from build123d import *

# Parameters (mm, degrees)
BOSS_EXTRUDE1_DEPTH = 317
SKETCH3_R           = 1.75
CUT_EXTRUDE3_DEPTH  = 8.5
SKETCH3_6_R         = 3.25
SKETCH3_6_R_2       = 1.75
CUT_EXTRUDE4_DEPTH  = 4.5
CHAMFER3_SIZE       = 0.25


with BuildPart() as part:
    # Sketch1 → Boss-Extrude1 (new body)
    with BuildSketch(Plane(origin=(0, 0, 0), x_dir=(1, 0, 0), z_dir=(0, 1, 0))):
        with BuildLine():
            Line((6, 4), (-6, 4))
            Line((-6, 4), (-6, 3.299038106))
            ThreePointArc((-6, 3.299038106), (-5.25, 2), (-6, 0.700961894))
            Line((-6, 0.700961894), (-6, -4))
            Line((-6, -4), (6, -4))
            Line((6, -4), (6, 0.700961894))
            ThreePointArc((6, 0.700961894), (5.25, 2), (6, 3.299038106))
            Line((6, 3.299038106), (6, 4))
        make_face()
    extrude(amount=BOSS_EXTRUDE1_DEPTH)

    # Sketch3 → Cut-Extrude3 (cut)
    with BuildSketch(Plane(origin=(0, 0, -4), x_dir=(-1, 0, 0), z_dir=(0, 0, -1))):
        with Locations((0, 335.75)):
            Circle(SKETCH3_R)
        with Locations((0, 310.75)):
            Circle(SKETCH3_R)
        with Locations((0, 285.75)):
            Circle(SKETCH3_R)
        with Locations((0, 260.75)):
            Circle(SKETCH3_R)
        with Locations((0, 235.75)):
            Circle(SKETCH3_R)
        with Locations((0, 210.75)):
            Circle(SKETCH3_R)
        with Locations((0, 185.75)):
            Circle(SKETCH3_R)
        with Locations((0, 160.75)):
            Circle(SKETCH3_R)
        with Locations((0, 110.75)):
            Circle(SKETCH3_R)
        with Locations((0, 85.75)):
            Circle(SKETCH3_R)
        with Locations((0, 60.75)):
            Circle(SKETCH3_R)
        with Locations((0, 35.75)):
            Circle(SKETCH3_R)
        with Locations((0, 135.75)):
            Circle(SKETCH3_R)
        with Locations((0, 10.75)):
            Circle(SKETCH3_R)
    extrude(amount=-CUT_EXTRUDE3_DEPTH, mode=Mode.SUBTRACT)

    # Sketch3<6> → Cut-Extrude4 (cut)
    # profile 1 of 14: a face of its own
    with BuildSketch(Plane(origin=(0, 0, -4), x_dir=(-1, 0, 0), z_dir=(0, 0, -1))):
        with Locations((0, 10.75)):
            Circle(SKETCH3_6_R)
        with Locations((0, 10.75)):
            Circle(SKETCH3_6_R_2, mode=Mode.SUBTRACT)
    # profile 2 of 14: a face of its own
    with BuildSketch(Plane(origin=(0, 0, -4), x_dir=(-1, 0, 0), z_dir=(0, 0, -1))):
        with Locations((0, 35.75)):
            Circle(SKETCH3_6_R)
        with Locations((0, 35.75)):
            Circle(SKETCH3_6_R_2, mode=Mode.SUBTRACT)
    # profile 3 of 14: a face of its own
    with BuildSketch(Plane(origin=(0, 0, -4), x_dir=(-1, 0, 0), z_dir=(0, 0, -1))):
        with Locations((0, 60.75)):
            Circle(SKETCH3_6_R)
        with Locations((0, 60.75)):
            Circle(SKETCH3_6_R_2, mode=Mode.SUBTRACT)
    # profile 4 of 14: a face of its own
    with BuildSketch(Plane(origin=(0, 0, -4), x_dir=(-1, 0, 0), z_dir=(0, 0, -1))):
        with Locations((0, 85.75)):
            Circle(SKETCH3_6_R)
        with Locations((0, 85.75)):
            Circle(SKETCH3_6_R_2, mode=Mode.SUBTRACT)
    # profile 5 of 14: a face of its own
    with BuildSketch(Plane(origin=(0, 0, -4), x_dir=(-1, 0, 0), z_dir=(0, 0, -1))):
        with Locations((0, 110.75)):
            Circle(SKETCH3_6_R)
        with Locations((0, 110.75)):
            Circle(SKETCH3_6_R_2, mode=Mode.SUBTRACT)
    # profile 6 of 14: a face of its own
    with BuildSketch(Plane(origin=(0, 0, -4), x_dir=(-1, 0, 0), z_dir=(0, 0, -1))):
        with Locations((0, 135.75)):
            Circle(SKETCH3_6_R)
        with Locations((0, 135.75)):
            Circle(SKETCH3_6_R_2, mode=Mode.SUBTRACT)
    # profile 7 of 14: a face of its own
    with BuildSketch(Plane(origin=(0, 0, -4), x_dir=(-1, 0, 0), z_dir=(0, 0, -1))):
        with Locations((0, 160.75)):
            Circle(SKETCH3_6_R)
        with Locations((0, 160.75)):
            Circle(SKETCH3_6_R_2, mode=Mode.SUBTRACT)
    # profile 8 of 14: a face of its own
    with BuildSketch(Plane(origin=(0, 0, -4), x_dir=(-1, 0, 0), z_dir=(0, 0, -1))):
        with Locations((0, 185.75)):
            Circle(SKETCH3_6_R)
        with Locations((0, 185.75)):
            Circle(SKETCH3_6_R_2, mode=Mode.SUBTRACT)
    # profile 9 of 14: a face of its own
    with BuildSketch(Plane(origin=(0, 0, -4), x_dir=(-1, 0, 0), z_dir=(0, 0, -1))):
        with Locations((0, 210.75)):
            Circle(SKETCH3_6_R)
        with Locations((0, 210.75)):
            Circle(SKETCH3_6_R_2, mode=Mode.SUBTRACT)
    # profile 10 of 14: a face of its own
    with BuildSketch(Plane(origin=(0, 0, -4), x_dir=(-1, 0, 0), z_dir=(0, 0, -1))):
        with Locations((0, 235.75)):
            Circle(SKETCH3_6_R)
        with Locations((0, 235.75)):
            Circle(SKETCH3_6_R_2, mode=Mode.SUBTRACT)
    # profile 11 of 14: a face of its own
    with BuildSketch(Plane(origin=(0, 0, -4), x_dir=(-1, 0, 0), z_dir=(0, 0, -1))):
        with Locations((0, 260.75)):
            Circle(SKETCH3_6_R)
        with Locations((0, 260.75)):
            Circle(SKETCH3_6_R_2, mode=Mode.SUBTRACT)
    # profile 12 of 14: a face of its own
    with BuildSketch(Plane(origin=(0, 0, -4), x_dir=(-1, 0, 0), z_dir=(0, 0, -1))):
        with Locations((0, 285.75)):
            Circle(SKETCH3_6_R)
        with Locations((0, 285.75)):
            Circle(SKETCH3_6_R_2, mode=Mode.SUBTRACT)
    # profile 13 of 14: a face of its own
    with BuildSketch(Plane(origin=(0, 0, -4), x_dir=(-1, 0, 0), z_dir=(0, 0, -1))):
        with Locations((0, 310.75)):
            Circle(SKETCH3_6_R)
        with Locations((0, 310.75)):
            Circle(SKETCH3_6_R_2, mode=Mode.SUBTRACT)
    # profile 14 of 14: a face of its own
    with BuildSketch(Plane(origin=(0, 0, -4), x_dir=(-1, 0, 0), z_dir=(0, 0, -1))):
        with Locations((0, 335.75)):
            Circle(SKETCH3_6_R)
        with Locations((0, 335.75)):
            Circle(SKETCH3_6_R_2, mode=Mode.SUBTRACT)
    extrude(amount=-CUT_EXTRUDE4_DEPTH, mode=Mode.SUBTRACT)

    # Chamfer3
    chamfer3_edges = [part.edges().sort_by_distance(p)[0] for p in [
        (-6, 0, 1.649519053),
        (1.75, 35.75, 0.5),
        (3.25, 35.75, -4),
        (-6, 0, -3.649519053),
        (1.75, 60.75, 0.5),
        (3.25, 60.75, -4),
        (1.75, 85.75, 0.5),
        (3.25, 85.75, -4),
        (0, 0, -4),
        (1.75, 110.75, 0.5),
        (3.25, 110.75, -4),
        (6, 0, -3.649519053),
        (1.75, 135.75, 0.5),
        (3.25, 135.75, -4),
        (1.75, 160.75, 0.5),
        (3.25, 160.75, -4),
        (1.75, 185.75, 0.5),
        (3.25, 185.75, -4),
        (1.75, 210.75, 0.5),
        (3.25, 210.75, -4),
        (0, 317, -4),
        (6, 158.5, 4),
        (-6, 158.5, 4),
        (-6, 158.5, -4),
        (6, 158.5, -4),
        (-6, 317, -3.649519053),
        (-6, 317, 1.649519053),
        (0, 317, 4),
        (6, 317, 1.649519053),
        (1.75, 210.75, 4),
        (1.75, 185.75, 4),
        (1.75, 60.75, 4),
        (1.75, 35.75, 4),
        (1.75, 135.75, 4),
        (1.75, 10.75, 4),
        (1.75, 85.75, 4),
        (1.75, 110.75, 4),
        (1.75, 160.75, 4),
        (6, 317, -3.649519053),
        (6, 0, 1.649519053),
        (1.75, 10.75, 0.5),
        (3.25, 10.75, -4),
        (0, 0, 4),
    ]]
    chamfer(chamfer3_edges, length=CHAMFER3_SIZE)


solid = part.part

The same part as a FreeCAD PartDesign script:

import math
import FreeCAD as App
import Part
import Sketcher

V = App.Vector
Q = App.Units.Quantity


def edges_at(feature, points):
    """Names of the edges that pass closest to the given points."""
    edges = feature.Shape.Edges
    near = lambda p: min(range(len(edges)), key=lambda i: edges[i].distToShape(Part.Vertex(*p))[0])
    return sorted({f"Edge{near(p) + 1}" for p in points})

doc = App.newDocument("Part")
body = doc.addObject("PartDesign::Body", "Body")

sketch1 = body.newObject("Sketcher::SketchObject", "Sketch")
sketch1.AttachmentSupport = (doc.getObject("XZ_Plane"), [""])
sketch1.MapMode = "FlatFace"
sketch1.addGeometry([
    Part.LineSegment(V(6, -4, 0), V(-6, -4, 0)),
    Part.LineSegment(V(-6, -4, 0), V(-6, -3.3, 0)),
    Part.ArcOfCircle(Part.Circle(V(-6.8, -2, 0), V(0, 0, 1), 1.5), math.radians(-60), math.radians(60)),
    Part.LineSegment(V(-6, -0.7, 0), V(-6, 4, 0)),
    Part.LineSegment(V(-6, 4, 0), V(6, 4, 0)),
    Part.LineSegment(V(6, 4, 0), V(6, -0.7, 0)),
    Part.ArcOfCircle(Part.Circle(V(6.8, -2, 0), V(0, 0, 1), 1.5), math.radians(120), math.radians(240)),
    Part.LineSegment(V(6, -3.3, 0), V(6, -4, 0)),
], False)
sketch1.addConstraint([
    Sketcher.Constraint("Coincident", 0, 2, 1, 1),
    Sketcher.Constraint("Coincident", 1, 2, 2, 1),
    Sketcher.Constraint("Coincident", 2, 2, 3, 1),
    Sketcher.Constraint("Coincident", 3, 2, 4, 1),
    Sketcher.Constraint("Coincident", 4, 2, 5, 1),
    Sketcher.Constraint("Coincident", 5, 2, 6, 1),
    Sketcher.Constraint("Coincident", 6, 2, 7, 1),
    Sketcher.Constraint("Coincident", 7, 2, 0, 1),
    Sketcher.Constraint("Horizontal", 0),
    Sketcher.Constraint("Vertical", 1),
    Sketcher.Constraint("Vertical", 3),
    Sketcher.Constraint("Horizontal", 4),
    Sketcher.Constraint("Vertical", 5),
    Sketcher.Constraint("Vertical", 7),
    Sketcher.Constraint("Equal", 2, 6),
    Sketcher.Constraint("Symmetric", 0, 2, 4, 2, -1, 1),
    Sketcher.Constraint("Symmetric", 2, 3, 6, 3, -2),
    Sketcher.Constraint("Horizontal", 2, 2, 5, 2),
    Sketcher.Constraint("Horizontal", 1, 2, 6, 2),
    Sketcher.Constraint("Radius", 2, Q("1.5 mm")),
    Sketcher.Constraint("DistanceX", 0, 2, 0, 1, Q("12 mm")),
    Sketcher.Constraint("DistanceY", 2, 3, -1, 1, Q("2 mm")),
    Sketcher.Constraint("DistanceY", 0, 2, -1, 1, Q("4 mm")),
    Sketcher.Constraint("DistanceX", 2, 3, 6, 3, Q("13.5 mm")),
])
pad1 = body.newObject("PartDesign::Pad", "Pad")
pad1.Profile = sketch1
pad1.Length = 317
pad1.Reversed = True

sketch2 = body.newObject("Sketcher::SketchObject", "Sketch001")
sketch2.AttachmentSupport = (doc.getObject("XY_Plane"), [""])
sketch2.MapMode = "FlatFace"
sketch2.AttachmentOffset = App.Placement(V(0, 0, -4), App.Rotation())
sketch2.addGeometry([
    Part.Circle(V(0, 335.8, 0), V(0, 0, 1), 1.8),
    Part.Circle(V(0, 310.8, 0), V(0, 0, 1), 1.8),
    Part.Circle(V(0, 285.8, 0), V(0, 0, 1), 1.8),
    Part.Circle(V(0, 260.8, 0), V(0, 0, 1), 1.8),
    Part.Circle(V(0, 235.8, 0), V(0, 0, 1), 1.8),
    Part.Circle(V(0, 210.8, 0), V(0, 0, 1), 1.8),
    Part.Circle(V(0, 185.8, 0), V(0, 0, 1), 1.8),
    Part.Circle(V(0, 160.8, 0), V(0, 0, 1), 1.8),
    Part.Circle(V(0, 110.8, 0), V(0, 0, 1), 1.8),
    Part.Circle(V(0, 85.8, 0), V(0, 0, 1), 1.8),
    Part.Circle(V(0, 60.8, 0), V(0, 0, 1), 1.8),
    Part.Circle(V(0, 35.8, 0), V(0, 0, 1), 1.8),
    Part.Circle(V(0, 135.8, 0), V(0, 0, 1), 1.8),
    Part.Circle(V(0, 10.8, 0), V(0, 0, 1), 1.8),
], False)
sketch2.addConstraint([
    Sketcher.Constraint("Equal", 0, 1),
    Sketcher.Constraint("Equal", 1, 2),
    Sketcher.Constraint("Equal", 2, 3),
    Sketcher.Constraint("Equal", 3, 4),
    Sketcher.Constraint("Equal", 4, 5),
    Sketcher.Constraint("Equal", 5, 6),
    Sketcher.Constraint("Equal", 6, 7),
    Sketcher.Constraint("Equal", 7, 8),
    Sketcher.Constraint("Equal", 8, 9),
    Sketcher.Constraint("Equal", 9, 10),
    Sketcher.Constraint("Equal", 10, 11),
    Sketcher.Constraint("Equal", 11, 12),
    Sketcher.Constraint("Equal", 12, 13),
    Sketcher.Constraint("PointOnObject", 0, 3, -2),
    Sketcher.Constraint("PointOnObject", 1, 3, -2),
    Sketcher.Constraint("PointOnObject", 2, 3, -2),
    Sketcher.Constraint("PointOnObject", 3, 3, -2),
    Sketcher.Constraint("PointOnObject", 4, 3, -2),
    Sketcher.Constraint("PointOnObject", 5, 3, -2),
    Sketcher.Constraint("PointOnObject", 6, 3, -2),
    Sketcher.Constraint("PointOnObject", 7, 3, -2),
    Sketcher.Constraint("PointOnObject", 8, 3, -2),
    Sketcher.Constraint("PointOnObject", 9, 3, -2),
    Sketcher.Constraint("PointOnObject", 10, 3, -2),
    Sketcher.Constraint("PointOnObject", 11, 3, -2),
    Sketcher.Constraint("PointOnObject", 12, 3, -2),
    Sketcher.Constraint("PointOnObject", 13, 3, -2),
    Sketcher.Constraint("Diameter", 0, Q("3.5 mm")),
    Sketcher.Constraint("DistanceY", 1, 3, 0, 3, Q("25 mm")),
    Sketcher.Constraint("DistanceY", 2, 3, 1, 3, Q("25 mm")),
    Sketcher.Constraint("DistanceY", 3, 3, 2, 3, Q("25 mm")),
    Sketcher.Constraint("DistanceY", 4, 3, 3, 3, Q("25 mm")),
    Sketcher.Constraint("DistanceY", 5, 3, 4, 3, Q("25 mm")),
    Sketcher.Constraint("DistanceY", 6, 3, 5, 3, Q("25 mm")),
    Sketcher.Constraint("DistanceY", 7, 3, 6, 3, Q("25 mm")),
    Sketcher.Constraint("DistanceY", 8, 3, 7, 3, Q("50 mm")),
    Sketcher.Constraint("DistanceY", 9, 3, 8, 3, Q("25 mm")),
    Sketcher.Constraint("DistanceY", 10, 3, 9, 3, Q("25 mm")),
    Sketcher.Constraint("DistanceY", 11, 3, 10, 3, Q("25 mm")),
    Sketcher.Constraint("DistanceY", 12, 3, 7, 3, Q("25 mm")),
    Sketcher.Constraint("DistanceY", 13, 3, 11, 3, Q("25 mm")),
    Sketcher.Constraint("DistanceY", -1, 1, 0, 3, Q("335.75 mm")),
])
pocket1 = body.newObject("PartDesign::Pocket", "Pocket")
pocket1.Profile = sketch2
pocket1.Length = 8.5
pocket1.Reversed = True

sketch3 = body.newObject("Sketcher::SketchObject", "Sketch002")
sketch3.AttachmentSupport = (doc.getObject("XY_Plane"), [""])
sketch3.MapMode = "FlatFace"
sketch3.AttachmentOffset = App.Placement(V(0, 0, -4), App.Rotation())
sketch3.addGeometry([
    Part.Circle(V(0, 10.8, 0), V(0, 0, 1), 3.2),
    Part.Circle(V(0, 10.8, 0), V(0, 0, 1), 1.8),
    Part.Circle(V(0, 35.8, 0), V(0, 0, 1), 3.2),
    Part.Circle(V(0, 35.8, 0), V(0, 0, 1), 1.8),
    Part.Circle(V(0, 60.8, 0), V(0, 0, 1), 3.2),
    Part.Circle(V(0, 60.8, 0), V(0, 0, 1), 1.8),
    Part.Circle(V(0, 85.8, 0), V(0, 0, 1), 3.2),
    Part.Circle(V(0, 85.8, 0), V(0, 0, 1), 1.8),
    Part.Circle(V(0, 110.8, 0), V(0, 0, 1), 3.2),
    Part.Circle(V(0, 110.8, 0), V(0, 0, 1), 1.8),
    Part.Circle(V(0, 135.8, 0), V(0, 0, 1), 3.2),
    Part.Circle(V(0, 135.8, 0), V(0, 0, 1), 1.8),
    Part.Circle(V(0, 160.8, 0), V(0, 0, 1), 3.2),
    Part.Circle(V(0, 160.8, 0), V(0, 0, 1), 1.8),
    Part.Circle(V(0, 185.8, 0), V(0, 0, 1), 3.2),
    Part.Circle(V(0, 185.8, 0), V(0, 0, 1), 1.8),
    Part.Circle(V(0, 210.8, 0), V(0, 0, 1), 3.2),
    Part.Circle(V(0, 210.8, 0), V(0, 0, 1), 1.8),
    Part.Circle(V(0, 235.8, 0), V(0, 0, 1), 3.2),
    Part.Circle(V(0, 235.8, 0), V(0, 0, 1), 1.8),
    Part.Circle(V(0, 260.8, 0), V(0, 0, 1), 3.2),
    Part.Circle(V(0, 260.8, 0), V(0, 0, 1), 1.8),
    Part.Circle(V(0, 285.8, 0), V(0, 0, 1), 3.2),
    Part.Circle(V(0, 285.8, 0), V(0, 0, 1), 1.8),
    Part.Circle(V(0, 310.8, 0), V(0, 0, 1), 3.2),
    Part.Circle(V(0, 310.8, 0), V(0, 0, 1), 1.8),
    Part.Circle(V(0, 335.8, 0), V(0, 0, 1), 3.2),
    Part.Circle(V(0, 335.8, 0), V(0, 0, 1), 1.8),
], False)
sketch3.addConstraint([
    Sketcher.Constraint("Coincident", 1, 3, 0, 3),
    Sketcher.Constraint("Coincident", 3, 3, 2, 3),
    Sketcher.Constraint("Coincident", 5, 3, 4, 3),
    Sketcher.Constraint("Coincident", 7, 3, 6, 3),
    Sketcher.Constraint("Coincident", 9, 3, 8, 3),
    Sketcher.Constraint("Coincident", 11, 3, 10, 3),
    Sketcher.Constraint("Coincident", 13, 3, 12, 3),
    Sketcher.Constraint("Coincident", 15, 3, 14, 3),
    Sketcher.Constraint("Coincident", 17, 3, 16, 3),
    Sketcher.Constraint("Coincident", 19, 3, 18, 3),
    Sketcher.Constraint("Coincident", 21, 3, 20, 3),
    Sketcher.Constraint("Coincident", 23, 3, 22, 3),
    Sketcher.Constraint("Coincident", 25, 3, 24, 3),
    Sketcher.Constraint("Coincident", 27, 3, 26, 3),
    Sketcher.Constraint("Equal", 0, 2),
    Sketcher.Constraint("Equal", 1, 3),
    Sketcher.Constraint("Equal", 2, 4),
    Sketcher.Constraint("Equal", 3, 5),
    Sketcher.Constraint("Equal", 4, 6),
    Sketcher.Constraint("Equal", 5, 7),
    Sketcher.Constraint("Equal", 6, 8),
    Sketcher.Constraint("Equal", 7, 9),
    Sketcher.Constraint("Equal", 8, 10),
    Sketcher.Constraint("Equal", 9, 11),
    Sketcher.Constraint("Equal", 10, 12),
    Sketcher.Constraint("Equal", 11, 13),
    Sketcher.Constraint("Equal", 12, 14),
    Sketcher.Constraint("Equal", 13, 15),
    Sketcher.Constraint("Equal", 14, 16),
    Sketcher.Constraint("Equal", 15, 17),
    Sketcher.Constraint("Equal", 16, 18),
    Sketcher.Constraint("Equal", 17, 19),
    Sketcher.Constraint("Equal", 18, 20),
    Sketcher.Constraint("Equal", 19, 21),
    Sketcher.Constraint("Equal", 20, 22),
    Sketcher.Constraint("Equal", 21, 23),
    Sketcher.Constraint("Equal", 22, 24),
    Sketcher.Constraint("Equal", 23, 25),
    Sketcher.Constraint("Equal", 24, 26),
    Sketcher.Constraint("Equal", 25, 27),
    Sketcher.Constraint("PointOnObject", 0, 3, -2),
    Sketcher.Constraint("PointOnObject", 2, 3, -2),
    Sketcher.Constraint("PointOnObject", 4, 3, -2),
    Sketcher.Constraint("PointOnObject", 6, 3, -2),
    Sketcher.Constraint("PointOnObject", 8, 3, -2),
    Sketcher.Constraint("PointOnObject", 10, 3, -2),
    Sketcher.Constraint("PointOnObject", 12, 3, -2),
    Sketcher.Constraint("PointOnObject", 14, 3, -2),
    Sketcher.Constraint("PointOnObject", 16, 3, -2),
    Sketcher.Constraint("PointOnObject", 18, 3, -2),
    Sketcher.Constraint("PointOnObject", 20, 3, -2),
    Sketcher.Constraint("PointOnObject", 22, 3, -2),
    Sketcher.Constraint("PointOnObject", 24, 3, -2),
    Sketcher.Constraint("PointOnObject", 26, 3, -2),
    Sketcher.Constraint("Diameter", 0, Q("6.5 mm")),
    Sketcher.Constraint("Diameter", 1, Q("3.5 mm")),
    Sketcher.Constraint("DistanceY", 0, 3, 2, 3, Q("25 mm")),
    Sketcher.Constraint("DistanceY", 2, 3, 4, 3, Q("25 mm")),
    Sketcher.Constraint("DistanceY", 4, 3, 6, 3, Q("25 mm")),
    Sketcher.Constraint("DistanceY", 6, 3, 8, 3, Q("25 mm")),
    Sketcher.Constraint("DistanceY", 8, 3, 10, 3, Q("25 mm")),
    Sketcher.Constraint("DistanceY", 10, 3, 12, 3, Q("25 mm")),
    Sketcher.Constraint("DistanceY", 12, 3, 14, 3, Q("25 mm")),
    Sketcher.Constraint("DistanceY", 14, 3, 16, 3, Q("25 mm")),
    Sketcher.Constraint("DistanceY", 16, 3, 18, 3, Q("25 mm")),
    Sketcher.Constraint("DistanceY", 18, 3, 20, 3, Q("25 mm")),
    Sketcher.Constraint("DistanceY", 20, 3, 22, 3, Q("25 mm")),
    Sketcher.Constraint("DistanceY", 22, 3, 24, 3, Q("25 mm")),
    Sketcher.Constraint("DistanceY", 24, 3, 26, 3, Q("25 mm")),
    Sketcher.Constraint("DistanceY", -1, 1, 0, 3, Q("10.75 mm")),
])
pocket2 = body.newObject("PartDesign::Pocket", "Pocket001")
pocket2.Profile = sketch3
pocket2.Length = 4.5
pocket2.Reversed = True
doc.recompute()

chamfer = body.newObject("PartDesign::Chamfer", "Chamfer")
chamfer.Base = (pocket2, edges_at(pocket2, [
    (-6, 0, 1.65),
    (1.75, 35.75, 0.5),
    (3.25, 35.75, -4),
    (-6, 0, -3.65),
    (1.75, 60.75, 0.5),
    (3.25, 60.75, -4),
    (1.75, 85.75, 0.5),
    (3.25, 85.75, -4),
    (0, 0, -4),
    (1.75, 110.75, 0.5),
    (3.25, 110.75, -4),
    (6, 0, -3.65),
    (1.75, 135.75, 0.5),
    (3.25, 135.75, -4),
    (1.75, 160.75, 0.5),
    (3.25, 160.75, -4),
    (1.75, 185.75, 0.5),
    (3.25, 185.75, -4),
    (1.75, 210.75, 0.5),
    (3.25, 210.75, -4),
    (0, 317, -4),
    (6, 158.5, 4),
    (-6, 158.5, 4),
    (-6, 158.5, -4),
    (6, 158.5, -4),
    (-6, 317, -3.65),
    (-6, 317, 1.65),
    (0, 317, 4),
    (6, 317, 1.65),
    (1.75, 210.75, 4),
    (1.75, 185.75, 4),
    (1.75, 60.75, 4),
    (1.75, 35.75, 4),
    (1.75, 135.75, 4),
    (1.75, 10.75, 4),
    (1.75, 85.75, 4),
    (1.75, 110.75, 4),
    (1.75, 160.75, 4),
    (6, 317, -3.65),
    (6, 0, 1.65),
    (1.75, 10.75, 0.5),
    (3.25, 10.75, -4),
    (0, 0, 4),
]))
chamfer.Size = 0.25

doc.recompute()
